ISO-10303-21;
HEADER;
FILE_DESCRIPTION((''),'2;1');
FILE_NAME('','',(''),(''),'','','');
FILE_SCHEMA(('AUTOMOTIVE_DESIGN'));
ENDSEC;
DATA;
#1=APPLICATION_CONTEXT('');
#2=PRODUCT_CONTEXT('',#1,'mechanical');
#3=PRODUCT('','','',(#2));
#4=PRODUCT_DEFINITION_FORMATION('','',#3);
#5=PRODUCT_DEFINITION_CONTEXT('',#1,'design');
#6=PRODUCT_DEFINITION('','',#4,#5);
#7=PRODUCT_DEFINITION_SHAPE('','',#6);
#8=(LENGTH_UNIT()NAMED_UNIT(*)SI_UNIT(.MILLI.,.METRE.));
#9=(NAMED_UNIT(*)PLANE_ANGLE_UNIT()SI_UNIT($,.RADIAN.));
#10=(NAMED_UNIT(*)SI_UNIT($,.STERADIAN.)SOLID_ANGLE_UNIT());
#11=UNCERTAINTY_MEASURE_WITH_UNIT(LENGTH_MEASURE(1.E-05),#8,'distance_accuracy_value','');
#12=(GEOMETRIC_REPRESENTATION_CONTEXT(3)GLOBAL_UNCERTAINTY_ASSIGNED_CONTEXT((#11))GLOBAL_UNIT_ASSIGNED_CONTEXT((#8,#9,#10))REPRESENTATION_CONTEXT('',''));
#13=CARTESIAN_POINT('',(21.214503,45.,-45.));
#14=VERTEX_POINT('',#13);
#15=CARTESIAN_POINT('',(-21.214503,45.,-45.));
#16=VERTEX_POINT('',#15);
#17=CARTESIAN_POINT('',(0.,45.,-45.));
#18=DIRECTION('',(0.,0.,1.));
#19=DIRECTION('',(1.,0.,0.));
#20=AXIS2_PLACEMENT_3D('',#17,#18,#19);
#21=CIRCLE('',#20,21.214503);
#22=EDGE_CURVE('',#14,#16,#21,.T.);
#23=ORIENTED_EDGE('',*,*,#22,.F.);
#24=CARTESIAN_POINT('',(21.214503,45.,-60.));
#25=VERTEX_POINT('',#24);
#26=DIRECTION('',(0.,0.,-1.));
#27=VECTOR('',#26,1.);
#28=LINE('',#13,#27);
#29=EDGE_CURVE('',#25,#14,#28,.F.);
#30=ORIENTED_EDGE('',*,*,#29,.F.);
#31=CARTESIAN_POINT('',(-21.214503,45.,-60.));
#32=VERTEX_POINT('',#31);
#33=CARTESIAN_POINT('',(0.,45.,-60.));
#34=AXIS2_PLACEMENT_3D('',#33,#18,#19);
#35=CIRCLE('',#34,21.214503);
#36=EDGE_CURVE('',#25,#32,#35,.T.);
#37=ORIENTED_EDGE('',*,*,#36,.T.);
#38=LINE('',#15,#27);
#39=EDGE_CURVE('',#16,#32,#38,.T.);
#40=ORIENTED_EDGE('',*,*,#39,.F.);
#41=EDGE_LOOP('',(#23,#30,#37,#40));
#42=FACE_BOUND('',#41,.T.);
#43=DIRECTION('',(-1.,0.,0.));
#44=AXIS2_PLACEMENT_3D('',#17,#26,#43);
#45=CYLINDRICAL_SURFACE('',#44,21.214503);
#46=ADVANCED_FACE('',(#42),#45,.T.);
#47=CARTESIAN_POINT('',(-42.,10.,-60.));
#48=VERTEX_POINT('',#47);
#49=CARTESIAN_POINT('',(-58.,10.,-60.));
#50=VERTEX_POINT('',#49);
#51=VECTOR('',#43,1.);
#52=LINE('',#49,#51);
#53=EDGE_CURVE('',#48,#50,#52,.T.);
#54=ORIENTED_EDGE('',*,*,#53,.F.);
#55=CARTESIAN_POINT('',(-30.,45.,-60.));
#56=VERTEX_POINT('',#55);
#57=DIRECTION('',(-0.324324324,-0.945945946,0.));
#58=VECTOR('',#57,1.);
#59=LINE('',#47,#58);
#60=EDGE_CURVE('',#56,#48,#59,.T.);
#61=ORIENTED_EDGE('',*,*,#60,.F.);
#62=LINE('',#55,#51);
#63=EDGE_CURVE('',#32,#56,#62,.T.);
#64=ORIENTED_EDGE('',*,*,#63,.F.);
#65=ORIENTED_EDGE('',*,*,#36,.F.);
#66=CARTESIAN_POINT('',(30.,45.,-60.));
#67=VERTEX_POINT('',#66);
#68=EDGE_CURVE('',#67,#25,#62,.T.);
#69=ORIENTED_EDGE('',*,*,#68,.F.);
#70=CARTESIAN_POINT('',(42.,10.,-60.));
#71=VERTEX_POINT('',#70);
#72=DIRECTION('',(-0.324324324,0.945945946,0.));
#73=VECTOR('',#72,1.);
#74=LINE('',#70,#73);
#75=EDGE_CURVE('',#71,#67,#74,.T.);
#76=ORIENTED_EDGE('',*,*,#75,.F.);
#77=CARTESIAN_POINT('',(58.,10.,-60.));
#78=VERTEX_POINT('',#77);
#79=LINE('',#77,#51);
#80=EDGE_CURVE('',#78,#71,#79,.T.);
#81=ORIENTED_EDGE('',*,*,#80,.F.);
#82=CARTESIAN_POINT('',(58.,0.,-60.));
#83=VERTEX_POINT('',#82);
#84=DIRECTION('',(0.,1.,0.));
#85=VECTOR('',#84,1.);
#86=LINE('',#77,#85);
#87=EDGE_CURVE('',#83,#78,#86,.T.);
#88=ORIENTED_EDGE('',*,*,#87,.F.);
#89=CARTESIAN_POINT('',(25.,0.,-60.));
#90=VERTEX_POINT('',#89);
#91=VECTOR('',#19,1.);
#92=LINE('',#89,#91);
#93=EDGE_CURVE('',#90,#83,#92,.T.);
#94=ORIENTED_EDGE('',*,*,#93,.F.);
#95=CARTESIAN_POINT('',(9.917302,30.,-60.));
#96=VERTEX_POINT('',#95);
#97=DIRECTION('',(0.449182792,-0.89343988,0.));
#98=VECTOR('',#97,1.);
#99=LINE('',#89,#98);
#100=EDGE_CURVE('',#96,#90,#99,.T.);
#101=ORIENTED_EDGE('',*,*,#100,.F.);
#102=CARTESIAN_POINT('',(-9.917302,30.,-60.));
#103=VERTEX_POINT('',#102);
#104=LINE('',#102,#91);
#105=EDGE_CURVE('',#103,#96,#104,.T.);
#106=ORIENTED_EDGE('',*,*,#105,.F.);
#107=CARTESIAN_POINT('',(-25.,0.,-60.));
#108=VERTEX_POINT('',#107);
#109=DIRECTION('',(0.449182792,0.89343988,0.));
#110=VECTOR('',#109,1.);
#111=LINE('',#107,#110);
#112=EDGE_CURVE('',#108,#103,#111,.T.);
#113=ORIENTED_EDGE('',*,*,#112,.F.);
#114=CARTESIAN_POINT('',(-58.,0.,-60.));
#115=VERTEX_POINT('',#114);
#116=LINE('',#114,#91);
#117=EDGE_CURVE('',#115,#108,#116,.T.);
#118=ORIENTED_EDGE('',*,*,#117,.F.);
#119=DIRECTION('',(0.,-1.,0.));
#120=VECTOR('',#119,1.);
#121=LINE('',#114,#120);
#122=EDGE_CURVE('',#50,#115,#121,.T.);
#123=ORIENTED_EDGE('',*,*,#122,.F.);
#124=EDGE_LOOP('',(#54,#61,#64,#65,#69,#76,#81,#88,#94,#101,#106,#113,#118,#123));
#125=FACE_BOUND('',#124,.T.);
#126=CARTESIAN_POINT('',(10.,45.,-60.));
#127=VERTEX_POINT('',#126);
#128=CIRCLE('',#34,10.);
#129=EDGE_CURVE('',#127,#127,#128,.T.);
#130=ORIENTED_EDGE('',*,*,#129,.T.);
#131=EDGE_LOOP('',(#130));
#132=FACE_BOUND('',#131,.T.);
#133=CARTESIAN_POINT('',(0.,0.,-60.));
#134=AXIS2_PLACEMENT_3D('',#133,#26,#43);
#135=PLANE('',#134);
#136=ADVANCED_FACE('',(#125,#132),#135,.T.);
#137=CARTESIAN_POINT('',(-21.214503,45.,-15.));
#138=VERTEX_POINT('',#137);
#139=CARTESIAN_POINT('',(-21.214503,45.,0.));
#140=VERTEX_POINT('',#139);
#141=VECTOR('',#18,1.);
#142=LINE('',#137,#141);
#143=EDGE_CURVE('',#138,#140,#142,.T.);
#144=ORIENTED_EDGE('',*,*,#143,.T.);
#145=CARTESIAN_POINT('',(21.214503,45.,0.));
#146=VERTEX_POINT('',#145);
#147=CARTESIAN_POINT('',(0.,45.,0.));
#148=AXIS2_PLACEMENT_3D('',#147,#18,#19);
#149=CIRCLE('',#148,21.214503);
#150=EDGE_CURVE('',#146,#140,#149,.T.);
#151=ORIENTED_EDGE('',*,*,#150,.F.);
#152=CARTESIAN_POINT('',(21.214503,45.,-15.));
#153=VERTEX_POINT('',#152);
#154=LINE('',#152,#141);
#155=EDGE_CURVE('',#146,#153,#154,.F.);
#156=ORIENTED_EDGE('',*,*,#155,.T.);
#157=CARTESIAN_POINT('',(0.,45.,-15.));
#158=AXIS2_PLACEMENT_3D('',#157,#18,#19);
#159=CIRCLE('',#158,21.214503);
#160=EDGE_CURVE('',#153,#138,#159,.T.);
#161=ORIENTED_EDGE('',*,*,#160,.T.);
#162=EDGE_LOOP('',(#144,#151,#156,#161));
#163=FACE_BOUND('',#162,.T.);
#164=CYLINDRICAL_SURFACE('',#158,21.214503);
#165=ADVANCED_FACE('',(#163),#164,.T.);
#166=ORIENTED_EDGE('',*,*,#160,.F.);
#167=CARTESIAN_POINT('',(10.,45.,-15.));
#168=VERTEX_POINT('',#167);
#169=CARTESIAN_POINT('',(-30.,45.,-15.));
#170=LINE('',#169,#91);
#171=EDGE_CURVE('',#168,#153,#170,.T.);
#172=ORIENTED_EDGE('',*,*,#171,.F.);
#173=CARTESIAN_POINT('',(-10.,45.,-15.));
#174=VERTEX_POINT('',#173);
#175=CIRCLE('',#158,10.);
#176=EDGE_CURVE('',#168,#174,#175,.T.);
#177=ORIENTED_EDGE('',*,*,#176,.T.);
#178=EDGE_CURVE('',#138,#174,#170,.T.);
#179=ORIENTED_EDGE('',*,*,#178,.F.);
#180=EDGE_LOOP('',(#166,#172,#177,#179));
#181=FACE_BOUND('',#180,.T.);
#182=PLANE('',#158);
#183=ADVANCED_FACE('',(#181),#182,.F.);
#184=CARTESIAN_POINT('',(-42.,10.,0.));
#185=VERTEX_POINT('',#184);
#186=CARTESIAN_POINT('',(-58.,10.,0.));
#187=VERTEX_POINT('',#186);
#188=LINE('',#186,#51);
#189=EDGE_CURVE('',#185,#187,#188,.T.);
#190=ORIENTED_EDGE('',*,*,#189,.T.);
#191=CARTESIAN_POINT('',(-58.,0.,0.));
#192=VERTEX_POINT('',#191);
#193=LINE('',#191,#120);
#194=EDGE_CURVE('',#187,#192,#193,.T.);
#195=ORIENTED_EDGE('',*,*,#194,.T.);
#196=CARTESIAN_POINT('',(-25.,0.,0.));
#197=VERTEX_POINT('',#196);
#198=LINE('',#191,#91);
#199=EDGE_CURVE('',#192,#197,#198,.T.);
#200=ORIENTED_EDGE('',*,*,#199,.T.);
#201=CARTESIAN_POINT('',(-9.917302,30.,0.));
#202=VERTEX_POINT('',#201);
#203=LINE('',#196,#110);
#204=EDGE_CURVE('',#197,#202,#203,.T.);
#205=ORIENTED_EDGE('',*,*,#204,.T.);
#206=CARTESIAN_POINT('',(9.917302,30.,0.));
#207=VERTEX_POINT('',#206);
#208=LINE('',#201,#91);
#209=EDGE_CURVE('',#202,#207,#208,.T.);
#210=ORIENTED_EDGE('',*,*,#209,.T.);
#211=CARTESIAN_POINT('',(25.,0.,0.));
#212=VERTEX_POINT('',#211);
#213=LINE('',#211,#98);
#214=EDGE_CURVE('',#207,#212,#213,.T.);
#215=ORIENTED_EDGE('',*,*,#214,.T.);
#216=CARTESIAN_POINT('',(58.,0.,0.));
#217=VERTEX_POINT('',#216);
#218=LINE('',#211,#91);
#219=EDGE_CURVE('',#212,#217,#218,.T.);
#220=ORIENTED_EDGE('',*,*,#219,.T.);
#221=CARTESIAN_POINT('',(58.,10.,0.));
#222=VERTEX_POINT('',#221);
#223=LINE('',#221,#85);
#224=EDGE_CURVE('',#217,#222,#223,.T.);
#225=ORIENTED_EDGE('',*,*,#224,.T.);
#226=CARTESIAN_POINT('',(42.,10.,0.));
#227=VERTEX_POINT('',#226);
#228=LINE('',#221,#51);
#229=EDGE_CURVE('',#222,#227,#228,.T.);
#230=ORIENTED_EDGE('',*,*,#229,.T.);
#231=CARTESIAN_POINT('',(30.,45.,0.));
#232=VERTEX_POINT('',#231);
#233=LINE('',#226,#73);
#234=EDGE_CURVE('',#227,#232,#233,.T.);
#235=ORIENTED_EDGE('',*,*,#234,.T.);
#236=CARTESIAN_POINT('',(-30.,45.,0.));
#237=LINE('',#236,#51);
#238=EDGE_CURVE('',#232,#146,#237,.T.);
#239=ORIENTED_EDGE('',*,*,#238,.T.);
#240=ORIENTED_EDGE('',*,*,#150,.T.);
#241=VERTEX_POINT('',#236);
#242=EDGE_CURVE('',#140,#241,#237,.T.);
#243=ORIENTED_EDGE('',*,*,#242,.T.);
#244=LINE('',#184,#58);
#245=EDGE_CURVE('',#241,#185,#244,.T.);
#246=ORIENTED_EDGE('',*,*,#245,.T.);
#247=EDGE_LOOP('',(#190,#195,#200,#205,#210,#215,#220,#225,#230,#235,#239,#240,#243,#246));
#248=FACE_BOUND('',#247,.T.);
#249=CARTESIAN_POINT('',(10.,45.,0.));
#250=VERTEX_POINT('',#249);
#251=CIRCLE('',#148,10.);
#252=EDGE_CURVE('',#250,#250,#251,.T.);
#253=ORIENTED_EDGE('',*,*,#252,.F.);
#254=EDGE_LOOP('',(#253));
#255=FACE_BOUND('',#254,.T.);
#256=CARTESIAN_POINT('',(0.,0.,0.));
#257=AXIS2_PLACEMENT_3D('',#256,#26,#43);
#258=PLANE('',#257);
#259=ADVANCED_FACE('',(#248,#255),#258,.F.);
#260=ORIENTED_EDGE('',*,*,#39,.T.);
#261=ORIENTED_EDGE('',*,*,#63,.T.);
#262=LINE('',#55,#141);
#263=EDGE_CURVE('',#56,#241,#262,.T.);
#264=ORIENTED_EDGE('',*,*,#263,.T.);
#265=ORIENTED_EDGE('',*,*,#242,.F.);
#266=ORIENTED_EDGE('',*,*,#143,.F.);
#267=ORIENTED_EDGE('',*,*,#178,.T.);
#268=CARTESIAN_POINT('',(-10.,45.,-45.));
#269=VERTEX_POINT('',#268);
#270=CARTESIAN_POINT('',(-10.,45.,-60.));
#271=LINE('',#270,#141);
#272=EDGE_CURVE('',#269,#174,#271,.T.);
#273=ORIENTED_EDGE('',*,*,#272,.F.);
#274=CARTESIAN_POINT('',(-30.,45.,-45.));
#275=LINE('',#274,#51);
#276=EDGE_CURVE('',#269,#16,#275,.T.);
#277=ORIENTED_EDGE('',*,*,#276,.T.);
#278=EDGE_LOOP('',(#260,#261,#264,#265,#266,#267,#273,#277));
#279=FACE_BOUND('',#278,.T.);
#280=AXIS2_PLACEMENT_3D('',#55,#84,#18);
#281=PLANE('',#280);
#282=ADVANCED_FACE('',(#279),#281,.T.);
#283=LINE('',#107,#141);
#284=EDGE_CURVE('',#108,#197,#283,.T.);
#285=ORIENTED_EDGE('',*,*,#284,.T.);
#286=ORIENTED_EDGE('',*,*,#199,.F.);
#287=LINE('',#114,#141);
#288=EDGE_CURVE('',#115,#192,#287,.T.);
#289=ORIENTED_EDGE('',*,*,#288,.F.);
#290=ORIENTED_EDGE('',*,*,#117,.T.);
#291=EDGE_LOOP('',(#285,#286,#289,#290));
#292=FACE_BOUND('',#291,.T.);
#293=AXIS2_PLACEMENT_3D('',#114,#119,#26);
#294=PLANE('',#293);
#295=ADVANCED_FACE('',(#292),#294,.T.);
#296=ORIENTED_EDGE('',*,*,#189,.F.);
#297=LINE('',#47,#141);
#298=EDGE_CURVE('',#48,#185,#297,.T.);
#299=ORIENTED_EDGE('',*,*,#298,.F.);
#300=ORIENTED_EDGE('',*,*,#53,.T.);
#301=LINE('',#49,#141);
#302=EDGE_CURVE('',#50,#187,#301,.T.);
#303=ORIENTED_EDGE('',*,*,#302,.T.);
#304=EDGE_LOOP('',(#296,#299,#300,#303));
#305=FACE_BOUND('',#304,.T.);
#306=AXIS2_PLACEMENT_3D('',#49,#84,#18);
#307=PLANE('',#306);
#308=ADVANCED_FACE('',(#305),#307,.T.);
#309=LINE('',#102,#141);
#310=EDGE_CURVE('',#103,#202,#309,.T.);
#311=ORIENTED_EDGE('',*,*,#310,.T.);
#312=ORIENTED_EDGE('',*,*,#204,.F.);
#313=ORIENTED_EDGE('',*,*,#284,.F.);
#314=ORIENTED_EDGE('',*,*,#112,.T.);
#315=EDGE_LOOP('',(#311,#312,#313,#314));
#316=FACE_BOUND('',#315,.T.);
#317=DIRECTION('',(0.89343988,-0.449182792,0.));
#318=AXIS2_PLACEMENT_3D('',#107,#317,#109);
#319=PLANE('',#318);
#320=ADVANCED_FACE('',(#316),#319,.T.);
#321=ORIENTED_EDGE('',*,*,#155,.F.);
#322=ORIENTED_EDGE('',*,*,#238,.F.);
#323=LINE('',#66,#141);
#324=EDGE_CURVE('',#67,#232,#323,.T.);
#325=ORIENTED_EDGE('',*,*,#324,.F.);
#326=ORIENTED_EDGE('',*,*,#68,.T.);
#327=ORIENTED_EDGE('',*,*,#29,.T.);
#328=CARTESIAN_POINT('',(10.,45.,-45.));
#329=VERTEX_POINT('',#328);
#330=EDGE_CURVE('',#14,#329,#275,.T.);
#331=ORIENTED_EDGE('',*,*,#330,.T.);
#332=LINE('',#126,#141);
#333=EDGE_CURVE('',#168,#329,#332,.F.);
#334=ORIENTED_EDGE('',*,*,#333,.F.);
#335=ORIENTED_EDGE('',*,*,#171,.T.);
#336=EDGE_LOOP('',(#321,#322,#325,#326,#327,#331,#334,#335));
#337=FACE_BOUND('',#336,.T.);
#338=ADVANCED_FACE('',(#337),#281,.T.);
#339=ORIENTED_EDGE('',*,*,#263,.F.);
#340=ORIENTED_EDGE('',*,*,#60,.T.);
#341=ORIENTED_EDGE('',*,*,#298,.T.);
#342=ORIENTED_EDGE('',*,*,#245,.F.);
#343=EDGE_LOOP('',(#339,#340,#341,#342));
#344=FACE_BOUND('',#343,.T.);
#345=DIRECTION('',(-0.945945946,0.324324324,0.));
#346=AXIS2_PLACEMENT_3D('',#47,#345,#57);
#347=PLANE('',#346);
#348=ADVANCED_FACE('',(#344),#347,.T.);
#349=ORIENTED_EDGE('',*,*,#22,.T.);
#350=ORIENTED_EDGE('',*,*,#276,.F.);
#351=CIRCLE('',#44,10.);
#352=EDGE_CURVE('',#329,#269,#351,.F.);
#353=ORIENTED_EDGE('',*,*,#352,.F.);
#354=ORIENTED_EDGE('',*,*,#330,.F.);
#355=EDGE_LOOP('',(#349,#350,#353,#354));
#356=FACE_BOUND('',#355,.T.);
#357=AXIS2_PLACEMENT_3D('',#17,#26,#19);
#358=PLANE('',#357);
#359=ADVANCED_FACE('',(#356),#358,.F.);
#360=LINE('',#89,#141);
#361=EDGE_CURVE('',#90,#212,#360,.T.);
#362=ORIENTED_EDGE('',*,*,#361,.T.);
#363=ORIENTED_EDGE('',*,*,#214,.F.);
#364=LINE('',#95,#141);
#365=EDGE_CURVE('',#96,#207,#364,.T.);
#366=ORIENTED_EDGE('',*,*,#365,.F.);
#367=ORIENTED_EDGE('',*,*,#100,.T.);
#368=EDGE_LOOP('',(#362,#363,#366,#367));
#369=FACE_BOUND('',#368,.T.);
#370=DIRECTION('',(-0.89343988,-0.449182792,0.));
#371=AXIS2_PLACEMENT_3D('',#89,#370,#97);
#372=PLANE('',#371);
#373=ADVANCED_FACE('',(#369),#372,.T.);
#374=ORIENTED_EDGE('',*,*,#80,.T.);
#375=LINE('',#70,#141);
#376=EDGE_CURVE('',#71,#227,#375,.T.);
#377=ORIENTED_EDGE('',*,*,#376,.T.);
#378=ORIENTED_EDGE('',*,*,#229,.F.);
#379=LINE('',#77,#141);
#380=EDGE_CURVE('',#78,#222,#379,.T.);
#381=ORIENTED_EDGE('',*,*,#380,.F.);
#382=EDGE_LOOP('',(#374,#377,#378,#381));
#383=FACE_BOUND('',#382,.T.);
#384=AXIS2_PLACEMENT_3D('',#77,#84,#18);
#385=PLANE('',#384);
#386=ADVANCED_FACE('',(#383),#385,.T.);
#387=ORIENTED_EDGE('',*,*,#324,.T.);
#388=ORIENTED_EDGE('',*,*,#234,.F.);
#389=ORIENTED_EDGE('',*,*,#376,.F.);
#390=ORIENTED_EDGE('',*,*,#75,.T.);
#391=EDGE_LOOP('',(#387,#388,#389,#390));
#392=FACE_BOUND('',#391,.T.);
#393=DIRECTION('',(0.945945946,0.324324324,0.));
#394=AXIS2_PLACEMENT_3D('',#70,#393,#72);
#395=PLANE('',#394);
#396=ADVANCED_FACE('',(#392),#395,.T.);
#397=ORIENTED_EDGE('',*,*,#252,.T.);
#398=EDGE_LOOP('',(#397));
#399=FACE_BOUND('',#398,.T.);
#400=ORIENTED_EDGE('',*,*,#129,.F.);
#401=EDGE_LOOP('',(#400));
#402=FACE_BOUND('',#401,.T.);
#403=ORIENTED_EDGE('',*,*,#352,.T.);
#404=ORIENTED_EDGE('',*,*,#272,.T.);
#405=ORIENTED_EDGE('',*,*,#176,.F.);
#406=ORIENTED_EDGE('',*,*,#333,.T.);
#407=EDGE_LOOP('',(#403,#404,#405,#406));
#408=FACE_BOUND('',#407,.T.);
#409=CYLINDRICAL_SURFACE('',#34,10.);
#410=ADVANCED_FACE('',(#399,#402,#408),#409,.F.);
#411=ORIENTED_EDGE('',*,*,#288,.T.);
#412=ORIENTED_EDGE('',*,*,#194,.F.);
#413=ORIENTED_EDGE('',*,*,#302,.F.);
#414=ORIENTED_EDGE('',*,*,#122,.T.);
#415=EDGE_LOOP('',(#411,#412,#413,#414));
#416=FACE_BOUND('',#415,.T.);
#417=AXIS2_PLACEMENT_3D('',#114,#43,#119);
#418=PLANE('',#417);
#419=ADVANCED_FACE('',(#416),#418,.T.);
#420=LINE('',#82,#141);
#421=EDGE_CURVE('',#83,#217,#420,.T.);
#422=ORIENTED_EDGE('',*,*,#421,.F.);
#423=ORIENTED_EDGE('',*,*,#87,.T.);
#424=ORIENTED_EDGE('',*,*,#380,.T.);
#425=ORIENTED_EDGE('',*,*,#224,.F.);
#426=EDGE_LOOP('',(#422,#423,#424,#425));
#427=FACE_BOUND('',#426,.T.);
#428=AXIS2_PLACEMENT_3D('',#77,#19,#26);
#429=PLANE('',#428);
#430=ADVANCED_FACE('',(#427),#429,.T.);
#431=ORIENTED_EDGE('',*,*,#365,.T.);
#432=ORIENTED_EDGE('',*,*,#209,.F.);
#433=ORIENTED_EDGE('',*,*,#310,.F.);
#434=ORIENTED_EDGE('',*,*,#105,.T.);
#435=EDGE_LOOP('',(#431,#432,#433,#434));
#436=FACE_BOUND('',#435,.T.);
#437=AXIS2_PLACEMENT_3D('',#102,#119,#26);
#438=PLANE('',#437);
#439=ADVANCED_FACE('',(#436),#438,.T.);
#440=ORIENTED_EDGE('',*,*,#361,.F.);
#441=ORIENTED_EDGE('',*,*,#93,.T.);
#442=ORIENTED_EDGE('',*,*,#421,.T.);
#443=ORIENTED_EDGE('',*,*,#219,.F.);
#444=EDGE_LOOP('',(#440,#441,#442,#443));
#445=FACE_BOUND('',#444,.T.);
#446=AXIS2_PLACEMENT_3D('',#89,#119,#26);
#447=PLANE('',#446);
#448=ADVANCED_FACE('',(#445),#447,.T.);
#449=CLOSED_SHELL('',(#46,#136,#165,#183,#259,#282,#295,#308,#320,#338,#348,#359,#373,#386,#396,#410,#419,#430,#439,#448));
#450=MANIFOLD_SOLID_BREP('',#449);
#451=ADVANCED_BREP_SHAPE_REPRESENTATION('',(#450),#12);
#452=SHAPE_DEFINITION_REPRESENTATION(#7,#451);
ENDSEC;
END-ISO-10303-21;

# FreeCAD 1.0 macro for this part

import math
import FreeCAD as App
import Part
import Sketcher


def add_polygon(sketch, points):
    """Adds a closed chain of lines whose ends are joined by coincident constraints."""
    first, n = sketch.GeometryCount, len(points)
    for a, b in zip(points, points[1:] + points[:1]):
        sketch.addGeometry(Part.LineSegment(App.Vector(*a, 0), App.Vector(*b, 0)), False)
    for i in range(n):
        sketch.addConstraint(Sketcher.Constraint("Coincident", first + i, 2, first + (i + 1) % n, 1))

doc = App.newDocument("Part")
body = doc.addObject("PartDesign::Body", "Body")

# Sketch on XY plane
sketch1 = body.newObject("Sketcher::SketchObject", "Sketch")
sketch1.AttachmentSupport = (doc.getObject("XY_Plane"), [""])
sketch1.MapMode = "FlatFace"
add_polygon(sketch1, [(-58, 10), (-58, 0), (-25, 0), (-10, 30), (10, 30), (25, 0), (58, 0), (58, 10), (42, 10), (30, 45), (-30, 45), (-42, 10)])  # lines 0-11
sketch1.addConstraint([
    Sketcher.Constraint("Vertical", 0),
    Sketcher.Constraint("Horizontal", 1),
    Sketcher.Constraint("Horizontal", 3),
    Sketcher.Constraint("Horizontal", 5),
    Sketcher.Constraint("Vertical", 6),
    Sketcher.Constraint("Horizontal", 7),
    Sketcher.Constraint("Horizontal", 9),
    Sketcher.Constraint("Horizontal", 11),
    Sketcher.Constraint("Symmetric", 1, 2, 4, 2, -1, 1),
    Sketcher.Constraint("Symmetric", 0, 2, 5, 2, -2),
    Sketcher.Constraint("Symmetric", 7, 2, 10, 2, -2),
    Sketcher.Constraint("Equal", 2, 4),
    Sketcher.Constraint("Equal", 8, 10),
    Sketcher.Constraint("DistanceX", 1, 1, 1, 2, 33.0),
    Sketcher.Constraint("DistanceX", 7, 2, 7, 1, 16.0),
    Sketcher.Constraint("DistanceX", 9, 2, 9, 1, 60.0),
    Sketcher.Constraint("DistanceY", 0, 2, 0, 1, 10.0),
    Sketcher.Constraint("Distance", 8, 37.0),
    Sketcher.Constraint("DistanceX", 0, 2, -1, 1, 58.0),
    Sketcher.Constraint("DistanceY", -1, 1, 2, 2, 30.0),
    Sketcher.Constraint("DistanceX", 3, 1, 3, 2, 19.834604),
])
pad1 = body.newObject("PartDesign::Pad", "Pad")
pad1.Profile = sketch1
pad1.Length = 60
pad1.Reversed = True

# Sketch on XY plane
sketch2 = body.newObject("Sketcher::SketchObject", "Sketch001")
sketch2.AttachmentSupport = (doc.getObject("XY_Plane"), [""])
sketch2.MapMode = "FlatFace"
sketch2.addGeometry([
    Part.LineSegment(App.Vector(-18, 34, 0), App.Vector(18, 34, 0)),
    Part.ArcOfCircle(Part.Circle(App.Vector(0, 45, 0), App.Vector(0, 0, 1), 21), math.radians(-32), math.radians(212)),
], False)
sketch2.addConstraint([
    Sketcher.Constraint("Coincident", 0, 1, 1, 2),
    Sketcher.Constraint("Coincident", 1, 1, 0, 2),
    Sketcher.Constraint("Horizontal", 0),
    Sketcher.Constraint("PointOnObject", 1, 3, -2),
    Sketcher.Constraint("DistanceY", -1, 1, 1, 3, 45.0),
    Sketcher.Constraint("Radius", 1, 21.214503),
    Sketcher.Constraint("DistanceX", 0, 1, 0, 2, 36.125883),
])
pad2 = body.newObject("PartDesign::Pad", "Pad001")
pad2.Profile = sketch2
pad2.Length = 15
pad2.Reversed = True

# Sketch on XY plane
sketch3 = body.newObject("Sketcher::SketchObject", "Sketch002")
sketch3.AttachmentSupport = (doc.getObject("XY_Plane"), [""])
sketch3.MapMode = "FlatFace"
sketch3.addGeometry(Part.Circle(App.Vector(0, 45, 0), App.Vector(0, 0, 1), 10), False)
sketch3.addConstraint([
    Sketcher.Constraint("PointOnObject", 0, 3, -2),
    Sketcher.Constraint("Diameter", 0, 20.0),
    Sketcher.Constraint("DistanceY", -1, 1, 0, 3, 45.0),
])
pocket1 = body.newObject("PartDesign::Pocket", "Pocket")
pocket1.Profile = sketch3
pocket1.Type = "ThroughAll"
doc.recompute()

datumplane = body.newObject("PartDesign::Plane", "DatumPlane")
datumplane.AttachmentSupport = (doc.getObject("XY_Plane"), [""])
datumplane.MapMode = "FlatFace"
datumplane.AttachmentOffset = App.Placement(App.Vector(0, 0, -30), App.Rotation())
mirrored = body.newObject("PartDesign::Mirrored", "Mirrored")
mirrored.Originals = [pad2, pocket1]
mirrored.MirrorPlane = (datumplane, [""])
body.Tip = mirrored

doc.recompute()
